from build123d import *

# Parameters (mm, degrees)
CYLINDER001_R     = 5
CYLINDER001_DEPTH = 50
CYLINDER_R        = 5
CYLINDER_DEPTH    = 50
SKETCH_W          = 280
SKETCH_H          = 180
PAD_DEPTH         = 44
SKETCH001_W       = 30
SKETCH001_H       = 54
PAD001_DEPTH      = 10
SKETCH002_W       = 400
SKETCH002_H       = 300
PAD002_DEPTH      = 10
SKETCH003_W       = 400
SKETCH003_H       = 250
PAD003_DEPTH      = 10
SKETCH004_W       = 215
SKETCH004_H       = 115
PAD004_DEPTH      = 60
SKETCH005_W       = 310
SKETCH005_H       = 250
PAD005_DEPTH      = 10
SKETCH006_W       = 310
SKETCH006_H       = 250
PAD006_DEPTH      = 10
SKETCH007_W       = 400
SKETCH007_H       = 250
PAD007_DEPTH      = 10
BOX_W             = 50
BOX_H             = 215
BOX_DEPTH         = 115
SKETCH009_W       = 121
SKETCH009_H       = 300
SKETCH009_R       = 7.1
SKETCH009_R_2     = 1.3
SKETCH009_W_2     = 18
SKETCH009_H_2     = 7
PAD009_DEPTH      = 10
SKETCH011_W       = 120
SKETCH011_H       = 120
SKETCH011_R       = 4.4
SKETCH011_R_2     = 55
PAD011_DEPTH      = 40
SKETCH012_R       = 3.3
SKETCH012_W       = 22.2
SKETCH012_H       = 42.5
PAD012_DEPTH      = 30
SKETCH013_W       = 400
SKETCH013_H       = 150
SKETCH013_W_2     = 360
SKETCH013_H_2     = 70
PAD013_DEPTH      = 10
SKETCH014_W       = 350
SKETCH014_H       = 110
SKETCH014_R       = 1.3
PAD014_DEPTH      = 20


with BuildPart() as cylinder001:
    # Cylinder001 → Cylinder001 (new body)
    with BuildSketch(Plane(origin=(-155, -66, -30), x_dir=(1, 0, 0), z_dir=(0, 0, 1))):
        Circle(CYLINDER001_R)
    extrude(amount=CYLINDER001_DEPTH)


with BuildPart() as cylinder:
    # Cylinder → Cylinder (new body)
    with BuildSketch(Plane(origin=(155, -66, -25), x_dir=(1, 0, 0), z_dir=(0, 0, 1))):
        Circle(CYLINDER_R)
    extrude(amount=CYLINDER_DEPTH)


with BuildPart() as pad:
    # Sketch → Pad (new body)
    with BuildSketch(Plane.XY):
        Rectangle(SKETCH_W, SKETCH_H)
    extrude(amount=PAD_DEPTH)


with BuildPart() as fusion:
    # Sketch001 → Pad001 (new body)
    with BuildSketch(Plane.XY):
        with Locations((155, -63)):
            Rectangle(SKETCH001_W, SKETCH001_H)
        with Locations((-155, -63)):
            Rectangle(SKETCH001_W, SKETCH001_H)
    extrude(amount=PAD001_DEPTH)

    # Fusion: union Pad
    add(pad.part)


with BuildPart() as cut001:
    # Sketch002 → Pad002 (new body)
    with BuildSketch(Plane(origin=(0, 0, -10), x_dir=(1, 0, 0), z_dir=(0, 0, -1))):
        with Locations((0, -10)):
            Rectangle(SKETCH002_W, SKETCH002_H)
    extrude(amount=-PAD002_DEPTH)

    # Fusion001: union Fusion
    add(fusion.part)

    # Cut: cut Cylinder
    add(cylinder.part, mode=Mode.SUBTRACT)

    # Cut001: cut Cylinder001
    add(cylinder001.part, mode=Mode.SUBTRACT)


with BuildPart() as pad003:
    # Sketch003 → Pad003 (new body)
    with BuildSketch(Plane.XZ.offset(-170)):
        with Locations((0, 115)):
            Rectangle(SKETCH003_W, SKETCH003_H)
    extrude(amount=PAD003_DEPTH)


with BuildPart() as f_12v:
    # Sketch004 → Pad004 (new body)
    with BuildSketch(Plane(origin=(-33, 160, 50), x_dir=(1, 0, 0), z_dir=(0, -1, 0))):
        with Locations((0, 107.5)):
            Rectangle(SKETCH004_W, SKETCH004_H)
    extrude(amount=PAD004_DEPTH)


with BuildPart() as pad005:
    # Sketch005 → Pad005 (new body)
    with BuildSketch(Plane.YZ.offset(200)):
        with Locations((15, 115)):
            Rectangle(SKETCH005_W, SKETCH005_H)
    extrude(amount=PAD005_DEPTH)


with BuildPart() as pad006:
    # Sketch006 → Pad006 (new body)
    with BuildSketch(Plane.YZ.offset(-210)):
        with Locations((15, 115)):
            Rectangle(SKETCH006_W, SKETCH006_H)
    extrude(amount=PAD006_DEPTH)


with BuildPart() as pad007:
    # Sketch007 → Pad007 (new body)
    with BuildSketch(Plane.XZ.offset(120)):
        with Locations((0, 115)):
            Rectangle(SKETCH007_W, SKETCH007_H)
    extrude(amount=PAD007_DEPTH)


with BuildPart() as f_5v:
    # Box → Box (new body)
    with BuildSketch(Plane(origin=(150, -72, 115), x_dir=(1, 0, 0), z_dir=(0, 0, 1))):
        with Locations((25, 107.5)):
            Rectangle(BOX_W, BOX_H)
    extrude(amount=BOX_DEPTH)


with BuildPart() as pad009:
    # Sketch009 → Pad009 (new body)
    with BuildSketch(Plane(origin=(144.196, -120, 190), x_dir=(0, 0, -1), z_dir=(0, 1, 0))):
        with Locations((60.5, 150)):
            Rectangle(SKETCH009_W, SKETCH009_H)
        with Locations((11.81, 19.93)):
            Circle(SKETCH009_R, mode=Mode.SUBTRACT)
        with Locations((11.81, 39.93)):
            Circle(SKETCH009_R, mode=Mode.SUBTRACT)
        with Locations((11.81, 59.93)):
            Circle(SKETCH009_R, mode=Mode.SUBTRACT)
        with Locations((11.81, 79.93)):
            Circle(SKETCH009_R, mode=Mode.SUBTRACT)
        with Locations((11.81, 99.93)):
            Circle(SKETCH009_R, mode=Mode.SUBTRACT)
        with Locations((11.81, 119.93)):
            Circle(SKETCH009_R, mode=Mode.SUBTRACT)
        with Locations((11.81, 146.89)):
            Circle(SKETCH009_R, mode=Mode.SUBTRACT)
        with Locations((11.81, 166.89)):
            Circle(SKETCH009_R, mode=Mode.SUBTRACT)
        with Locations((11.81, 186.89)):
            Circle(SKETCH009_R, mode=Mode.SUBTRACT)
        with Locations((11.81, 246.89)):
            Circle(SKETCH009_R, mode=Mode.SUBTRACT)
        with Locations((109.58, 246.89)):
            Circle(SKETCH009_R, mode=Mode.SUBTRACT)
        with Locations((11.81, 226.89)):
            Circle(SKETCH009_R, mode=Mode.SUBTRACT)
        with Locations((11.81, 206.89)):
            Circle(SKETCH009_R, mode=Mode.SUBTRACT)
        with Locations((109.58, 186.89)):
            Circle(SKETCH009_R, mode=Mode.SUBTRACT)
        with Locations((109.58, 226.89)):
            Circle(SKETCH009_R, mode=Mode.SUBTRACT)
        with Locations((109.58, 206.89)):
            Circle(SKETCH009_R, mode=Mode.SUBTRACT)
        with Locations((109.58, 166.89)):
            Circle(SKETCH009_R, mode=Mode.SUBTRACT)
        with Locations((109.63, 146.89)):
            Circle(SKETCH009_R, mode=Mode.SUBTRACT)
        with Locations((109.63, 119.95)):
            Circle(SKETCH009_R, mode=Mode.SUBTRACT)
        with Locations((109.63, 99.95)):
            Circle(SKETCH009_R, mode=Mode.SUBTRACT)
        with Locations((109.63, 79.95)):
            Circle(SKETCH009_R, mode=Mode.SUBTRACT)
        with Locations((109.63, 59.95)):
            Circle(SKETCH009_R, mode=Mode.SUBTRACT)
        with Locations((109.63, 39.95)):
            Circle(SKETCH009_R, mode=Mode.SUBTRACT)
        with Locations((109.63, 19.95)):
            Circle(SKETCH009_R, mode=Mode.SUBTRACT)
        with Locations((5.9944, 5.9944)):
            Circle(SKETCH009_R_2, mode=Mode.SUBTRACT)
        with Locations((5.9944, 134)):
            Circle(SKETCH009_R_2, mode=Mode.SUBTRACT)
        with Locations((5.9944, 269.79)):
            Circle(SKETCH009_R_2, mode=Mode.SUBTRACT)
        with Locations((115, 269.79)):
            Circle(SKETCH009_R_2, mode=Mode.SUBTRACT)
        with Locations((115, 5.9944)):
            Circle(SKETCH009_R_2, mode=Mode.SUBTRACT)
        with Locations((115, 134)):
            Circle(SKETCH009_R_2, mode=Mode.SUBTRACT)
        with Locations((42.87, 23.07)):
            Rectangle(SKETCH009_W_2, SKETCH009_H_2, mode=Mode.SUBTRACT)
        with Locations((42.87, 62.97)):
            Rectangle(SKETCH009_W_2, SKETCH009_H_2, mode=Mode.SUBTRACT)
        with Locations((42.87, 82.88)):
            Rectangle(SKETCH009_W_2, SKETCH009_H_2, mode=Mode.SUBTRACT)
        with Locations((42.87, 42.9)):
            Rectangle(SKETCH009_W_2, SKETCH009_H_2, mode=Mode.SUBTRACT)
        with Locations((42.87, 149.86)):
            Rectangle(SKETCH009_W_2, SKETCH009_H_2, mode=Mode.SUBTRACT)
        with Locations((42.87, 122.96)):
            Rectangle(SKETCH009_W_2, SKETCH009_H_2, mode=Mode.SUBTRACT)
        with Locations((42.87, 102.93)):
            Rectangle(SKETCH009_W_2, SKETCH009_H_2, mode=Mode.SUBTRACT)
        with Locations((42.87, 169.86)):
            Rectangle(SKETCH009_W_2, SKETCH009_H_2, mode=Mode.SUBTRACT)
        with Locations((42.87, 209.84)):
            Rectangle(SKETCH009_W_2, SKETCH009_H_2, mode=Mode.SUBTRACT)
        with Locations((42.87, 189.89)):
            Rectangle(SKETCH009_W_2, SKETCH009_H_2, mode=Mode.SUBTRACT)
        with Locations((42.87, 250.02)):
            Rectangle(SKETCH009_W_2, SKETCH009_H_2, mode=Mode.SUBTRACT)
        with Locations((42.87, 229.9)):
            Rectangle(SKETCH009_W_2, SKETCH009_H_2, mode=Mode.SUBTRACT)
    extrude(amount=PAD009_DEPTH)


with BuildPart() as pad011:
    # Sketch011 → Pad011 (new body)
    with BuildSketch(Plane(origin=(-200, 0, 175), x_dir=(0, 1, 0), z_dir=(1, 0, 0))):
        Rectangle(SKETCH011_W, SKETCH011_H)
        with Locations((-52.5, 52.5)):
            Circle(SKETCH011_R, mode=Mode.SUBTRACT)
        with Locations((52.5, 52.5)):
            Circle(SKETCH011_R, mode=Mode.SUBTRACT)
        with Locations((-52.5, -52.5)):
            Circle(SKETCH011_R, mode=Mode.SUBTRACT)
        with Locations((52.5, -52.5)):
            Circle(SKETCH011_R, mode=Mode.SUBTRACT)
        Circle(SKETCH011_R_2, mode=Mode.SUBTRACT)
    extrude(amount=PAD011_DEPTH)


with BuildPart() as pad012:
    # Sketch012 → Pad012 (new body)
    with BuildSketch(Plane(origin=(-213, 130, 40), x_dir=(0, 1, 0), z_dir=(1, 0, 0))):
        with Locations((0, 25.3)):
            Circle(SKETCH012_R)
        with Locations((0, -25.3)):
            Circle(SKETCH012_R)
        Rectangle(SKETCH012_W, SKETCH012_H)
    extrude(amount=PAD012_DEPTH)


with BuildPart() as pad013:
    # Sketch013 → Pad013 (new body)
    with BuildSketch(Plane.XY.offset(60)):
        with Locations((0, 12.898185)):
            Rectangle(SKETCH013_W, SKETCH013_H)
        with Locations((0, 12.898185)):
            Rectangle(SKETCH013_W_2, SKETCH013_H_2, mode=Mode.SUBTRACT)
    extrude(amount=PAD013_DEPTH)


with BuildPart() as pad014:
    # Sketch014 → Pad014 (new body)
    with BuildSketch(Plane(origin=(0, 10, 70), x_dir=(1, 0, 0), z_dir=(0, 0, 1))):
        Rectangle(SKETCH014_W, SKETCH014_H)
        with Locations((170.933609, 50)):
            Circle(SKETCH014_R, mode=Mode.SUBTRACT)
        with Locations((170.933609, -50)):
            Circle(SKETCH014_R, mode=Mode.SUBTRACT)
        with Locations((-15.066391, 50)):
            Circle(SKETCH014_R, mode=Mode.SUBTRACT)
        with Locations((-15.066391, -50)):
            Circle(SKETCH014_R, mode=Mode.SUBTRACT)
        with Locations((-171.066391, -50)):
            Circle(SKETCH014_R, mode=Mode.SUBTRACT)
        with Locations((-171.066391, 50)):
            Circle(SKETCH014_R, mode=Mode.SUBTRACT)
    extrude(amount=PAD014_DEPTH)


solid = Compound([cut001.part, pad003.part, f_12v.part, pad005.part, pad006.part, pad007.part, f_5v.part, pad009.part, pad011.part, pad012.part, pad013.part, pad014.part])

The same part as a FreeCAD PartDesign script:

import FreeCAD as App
import Part
import Sketcher

V = App.Vector
Q = App.Units.Quantity


def add_polygon(sketch, points):
    """Adds a closed chain of lines whose ends are joined by coincident constraints."""
    first, n = sketch.GeometryCount, len(points)
    for a, b in zip(points, points[1:] + points[:1]):
        sketch.addGeometry(Part.LineSegment(App.Vector(*a, 0), App.Vector(*b, 0)), False)
    for i in range(n):
        sketch.addConstraint(Sketcher.Constraint("Coincident", first + i, 2, first + (i + 1) % n, 1))

doc = App.newDocument("Part")
body = doc.addObject("PartDesign::Body", "Body")

# Sketch on XY plane
sketch1 = body.newObject("Sketcher::SketchObject", "Sketch")
sketch1.AttachmentSupport = (doc.getObject("XY_Plane"), [""])
sketch1.MapMode = "FlatFace"
sketch1.AttachmentOffset = App.Placement(V(0, 0, -30), App.Rotation())
sketch1.addGeometry(Part.Circle(V(-155, -66, 0), V(0, 0, 1), 5), False)
sketch1.addConstraint([
    Sketcher.Constraint("Diameter", 0, Q("10 mm")),
    Sketcher.Constraint("DistanceX", 0, 3, -1, 1, Q("155 mm")),
    Sketcher.Constraint("DistanceY", 0, 3, -1, 1, Q("66 mm")),
])
pad1 = body.newObject("PartDesign::Pad", "Pad")
pad1.Profile = sketch1
pad1.Length = 50
body2 = doc.addObject("PartDesign::Body", "Body001")

# Sketch on XY plane
sketch2 = body2.newObject("Sketcher::SketchObject", "Sketch001")
sketch2.AttachmentSupport = (doc.getObject("XY_Plane001"), [""])
sketch2.MapMode = "FlatFace"
sketch2.AttachmentOffset = App.Placement(V(0, 0, -25), App.Rotation())
sketch2.addGeometry(Part.Circle(V(155, -66, 0), V(0, 0, 1), 5), False)
sketch2.addConstraint([
    Sketcher.Constraint("Diameter", 0, Q("10 mm")),
    Sketcher.Constraint("DistanceX", -1, 1, 0, 3, Q("155 mm")),
    Sketcher.Constraint("DistanceY", 0, 3, -1, 1, Q("66 mm")),
])
pad2 = body2.newObject("PartDesign::Pad", "Pad001")
pad2.Profile = sketch2
pad2.Length = 50
body3 = doc.addObject("PartDesign::Body", "Body002")

# Sketch on XY plane
sketch3 = body3.newObject("Sketcher::SketchObject", "Sketch002")
sketch3.AttachmentSupport = (doc.getObject("XY_Plane002"), [""])
sketch3.MapMode = "FlatFace"
add_polygon(sketch3, [(-140, 90), (-140, -90), (140, -90), (140, 90)])  # lines 0-3
sketch3.addConstraint([
    Sketcher.Constraint("Vertical", 0),
    Sketcher.Constraint("Horizontal", 1),
    Sketcher.Constraint("Vertical", 2),
    Sketcher.Constraint("Horizontal", 3),
    Sketcher.Constraint("Symmetric", 0, 2, 2, 2, -1, 1),
    Sketcher.Constraint("DistanceX", 1, 1, 1, 2, Q("280 mm")),
    Sketcher.Constraint("DistanceY", 0, 2, 0, 1, Q("180 mm")),
])
pad3 = body3.newObject("PartDesign::Pad", "Pad002")
pad3.Profile = sketch3
pad3.Length = 44
body4 = doc.addObject("PartDesign::Body", "Body003")
body4.AllowCompound = True

# Sketch on XY plane
sketch4 = body4.newObject("Sketcher::SketchObject", "Sketch003")
sketch4.AttachmentSupport = (doc.getObject("XY_Plane003"), [""])
sketch4.MapMode = "FlatFace"
add_polygon(sketch4, [(140, -36), (140, -90), (170, -90), (170, -36)])  # lines 0-3
add_polygon(sketch4, [(-170, -36), (-170, -90), (-140, -90), (-140, -36)])  # lines 4-7
sketch4.addConstraint([
    Sketcher.Constraint("Vertical", 0),
    Sketcher.Constraint("Horizontal", 1),
    Sketcher.Constraint("Vertical", 2),
    Sketcher.Constraint("Horizontal", 3),
    Sketcher.Constraint("Vertical", 4),
    Sketcher.Constraint("Horizontal", 5),
    Sketcher.Constraint("Vertical", 6),
    Sketcher.Constraint("Horizontal", 7),
    Sketcher.Constraint("Symmetric", 1, 2, 4, 2, -2),
    Sketcher.Constraint("Symmetric", 3, 2, 6, 2, -2),
    Sketcher.Constraint("DistanceX", 1, 1, 1, 2, Q("30 mm")),
    Sketcher.Constraint("DistanceY", 0, 2, 0, 1, Q("54 mm")),
    Sketcher.Constraint("DistanceX", -1, 1, 0, 2, Q("140 mm")),
    Sketcher.Constraint("DistanceY", 0, 2, -1, 1, Q("90 mm")),
])
pad4 = body4.newObject("PartDesign::Pad", "Pad003")
pad4.Profile = sketch4
pad4.Length = 10
doc.recompute()

boolean = body4.newObject("PartDesign::Boolean", "Boolean")
boolean.Type = "Fuse"
boolean.addObjects([body3])
body5 = doc.addObject("PartDesign::Body", "Body004")

# Sketch on XY plane
sketch5 = body5.newObject("Sketcher::SketchObject", "Sketch004")
sketch5.AttachmentSupport = (doc.getObject("XY_Plane004"), [""])
sketch5.MapMode = "FlatFace"
sketch5.AttachmentOffset = App.Placement(V(0, 0, -10), App.Rotation())
add_polygon(sketch5, [(-200, -140), (-200, 160), (200, 160), (200, -140)])  # lines 0-3
sketch5.addConstraint([
    Sketcher.Constraint("Vertical", 0),
    Sketcher.Constraint("Horizontal", 1),
    Sketcher.Constraint("Vertical", 2),
    Sketcher.Constraint("Horizontal", 3),
    Sketcher.Constraint("DistanceX", 1, 1, 1, 2, Q("400 mm")),
    Sketcher.Constraint("DistanceY", 0, 1, 0, 2, Q("300 mm")),
    Sketcher.Constraint("DistanceX", 0, 2, -1, 1, Q("200 mm")),
    Sketcher.Constraint("DistanceY", -1, 1, 0, 2, Q("160 mm")),
])
pad5 = body5.newObject("PartDesign::Pad", "Pad004")
pad5.Profile = sketch5
pad5.Length = 10
doc.recompute()

boolean2 = body5.newObject("PartDesign::Boolean", "Boolean001")
boolean2.Type = "Fuse"
boolean2.addObjects([body4])
doc.recompute()

boolean3 = body5.newObject("PartDesign::Boolean", "Boolean002")
boolean3.Type = "Cut"
boolean3.addObjects([body2])
doc.recompute()

boolean4 = body5.newObject("PartDesign::Boolean", "Boolean003")
boolean4.Type = "Cut"
boolean4.addObjects([body])
body6 = doc.addObject("PartDesign::Body", "Body005")

# Sketch on XZ plane
sketch6 = body6.newObject("Sketcher::SketchObject", "Sketch005")
sketch6.AttachmentSupport = (doc.getObject("XZ_Plane005"), [""])
sketch6.MapMode = "FlatFace"
sketch6.AttachmentOffset = App.Placement(V(0, 0, -170), App.Rotation())
add_polygon(sketch6, [(-200, 240), (-200, -10), (200, -10), (200, 240)])  # lines 0-3
sketch6.addConstraint([
    Sketcher.Constraint("Vertical", 0),
    Sketcher.Constraint("Horizontal", 1),
    Sketcher.Constraint("Vertical", 2),
    Sketcher.Constraint("Horizontal", 3),
    Sketcher.Constraint("DistanceX", 1, 1, 1, 2, Q("400 mm")),
    Sketcher.Constraint("DistanceY", 0, 2, 0, 1, Q("250 mm")),
    Sketcher.Constraint("DistanceX", 0, 2, -1, 1, Q("200 mm")),
    Sketcher.Constraint("DistanceY", 0, 2, -1, 1, Q("10 mm")),
])
pad6 = body6.newObject("PartDesign::Pad", "Pad005")
pad6.Profile = sketch6
pad6.Length = 10
body7 = doc.addObject("PartDesign::Body", "Body006")

# Sketch on XZ plane
sketch7 = body7.newObject("Sketcher::SketchObject", "Sketch006")
sketch7.AttachmentSupport = (doc.getObject("XZ_Plane006"), [""])
sketch7.MapMode = "FlatFace"
sketch7.AttachmentOffset = App.Placement(V(0, 0, -160), App.Rotation())
add_polygon(sketch7, [(-140, 215), (-140, 100), (74, 100), (74, 215)])  # lines 0-3
sketch7.addConstraint([
    Sketcher.Constraint("Vertical", 0),
    Sketcher.Constraint("Horizontal", 1),
    Sketcher.Constraint("Vertical", 2),
    Sketcher.Constraint("Horizontal", 3),
    Sketcher.Constraint("DistanceX", 1, 1, 1, 2, Q("215 mm")),
    Sketcher.Constraint("DistanceY", 0, 2, 0, 1, Q("115 mm")),
    Sketcher.Constraint("DistanceY", -1, 1, 0, 2, Q("100 mm")),
    Sketcher.Constraint("DistanceX", 0, 2, -1, 1, Q("140.5 mm")),
])
pad7 = body7.newObject("PartDesign::Pad", "Pad006")
pad7.Profile = sketch7
pad7.Length = 60
body8 = doc.addObject("PartDesign::Body", "Body007")

# Sketch on YZ plane
sketch8 = body8.newObject("Sketcher::SketchObject", "Sketch007")
sketch8.AttachmentSupport = (doc.getObject("YZ_Plane007"), [""])
sketch8.MapMode = "FlatFace"
sketch8.AttachmentOffset = App.Placement(V(0, 0, 200), App.Rotation())
add_polygon(sketch8, [(-140, 240), (-140, -10), (170, -10), (170, 240)])  # lines 0-3
sketch8.addConstraint([
    Sketcher.Constraint("Vertical", 0),
    Sketcher.Constraint("Horizontal", 1),
    Sketcher.Constraint("Vertical", 2),
    Sketcher.Constraint("Horizontal", 3),
    Sketcher.Constraint("DistanceX", 1, 1, 1, 2, Q("310 mm")),
    Sketcher.Constraint("DistanceY", 0, 2, 0, 1, Q("250 mm")),
    Sketcher.Constraint("DistanceX", 0, 2, -1, 1, Q("140 mm")),
    Sketcher.Constraint("DistanceY", 0, 2, -1, 1, Q("10 mm")),
])
pad8 = body8.newObject("PartDesign::Pad", "Pad007")
pad8.Profile = sketch8
pad8.Length = 10
body9 = doc.addObject("PartDesign::Body", "Body008")

# Sketch on YZ plane
sketch9 = body9.newObject("Sketcher::SketchObject", "Sketch008")
sketch9.AttachmentSupport = (doc.getObject("YZ_Plane008"), [""])
sketch9.MapMode = "FlatFace"
sketch9.AttachmentOffset = App.Placement(V(0, 0, -210), App.Rotation())
add_polygon(sketch9, [(-140, 240), (-140, -10), (170, -10), (170, 240)])  # lines 0-3
sketch9.addConstraint([
    Sketcher.Constraint("Vertical", 0),
    Sketcher.Constraint("Horizontal", 1),
    Sketcher.Constraint("Vertical", 2),
    Sketcher.Constraint("Horizontal", 3),
    Sketcher.Constraint("DistanceX", 1, 1, 1, 2, Q("310 mm")),
    Sketcher.Constraint("DistanceY", 0, 2, 0, 1, Q("250 mm")),
    Sketcher.Constraint("DistanceX", 0, 2, -1, 1, Q("140 mm")),
    Sketcher.Constraint("DistanceY", 0, 2, -1, 1, Q("10 mm")),
])
pad9 = body9.newObject("PartDesign::Pad", "Pad008")
pad9.Profile = sketch9
pad9.Length = 10
body10 = doc.addObject("PartDesign::Body", "Body009")

# Sketch on XZ plane
sketch10 = body10.newObject("Sketcher::SketchObject", "Sketch009")
sketch10.AttachmentSupport = (doc.getObject("XZ_Plane009"), [""])
sketch10.MapMode = "FlatFace"
sketch10.AttachmentOffset = App.Placement(V(0, 0, 120), App.Rotation())
add_polygon(sketch10, [(-200, 240), (-200, -10), (200, -10), (200, 240)])  # lines 0-3
sketch10.addConstraint([
    Sketcher.Constraint("Vertical", 0),
    Sketcher.Constraint("Horizontal", 1),
    Sketcher.Constraint("Vertical", 2),
    Sketcher.Constraint("Horizontal", 3),
    Sketcher.Constraint("DistanceX", 1, 1, 1, 2, Q("400 mm")),
    Sketcher.Constraint("DistanceY", 0, 2, 0, 1, Q("250 mm")),
    Sketcher.Constraint("DistanceX", 0, 2, -1, 1, Q("200 mm")),
    Sketcher.Constraint("DistanceY", 0, 2, -1, 1, Q("10 mm")),
])
pad10 = body10.newObject("PartDesign::Pad", "Pad009")
pad10.Profile = sketch10
pad10.Length = 10
body11 = doc.addObject("PartDesign::Body", "Body010")

# Sketch on XY plane
sketch11 = body11.newObject("Sketcher::SketchObject", "Sketch010")
sketch11.AttachmentSupport = (doc.getObject("XY_Plane010"), [""])
sketch11.MapMode = "FlatFace"
sketch11.AttachmentOffset = App.Placement(V(0, 0, 115), App.Rotation())
add_polygon(sketch11, [(150, 143), (150, -72), (200, -72), (200, 143)])  # lines 0-3
sketch11.addConstraint([
    Sketcher.Constraint("Vertical", 0),
    Sketcher.Constraint("Horizontal", 1),
    Sketcher.Constraint("Vertical", 2),
    Sketcher.Constraint("Horizontal", 3),
    Sketcher.Constraint("DistanceX", 1, 1, 1, 2, Q("50 mm")),
    Sketcher.Constraint("DistanceY", 0, 2, 0, 1, Q("215 mm")),
    Sketcher.Constraint("DistanceX", -1, 1, 0, 2, Q("150 mm")),
    Sketcher.Constraint("DistanceY", 0, 2, -1, 1, Q("72 mm")),
])
pad11 = body11.newObject("PartDesign::Pad", "Pad010")
pad11.Profile = sketch11
pad11.Length = 115
body12 = doc.addObject("PartDesign::Body", "Body011")

# Sketch on XZ plane
sketch12 = body12.newObject("Sketcher::SketchObject", "Sketch011")
sketch12.AttachmentSupport = (doc.getObject("XZ_Plane011"), [""])
sketch12.MapMode = "FlatFace"
sketch12.AttachmentOffset = App.Placement(V(0, 0, 120), App.Rotation())
add_polygon(sketch12, [(-155.8, 190), (144.2, 190), (144.2, 69), (-155.8, 69)])  # lines 0-3
sketch12.addGeometry(Part.Circle(V(138.2, 184, 0), V(0, 0, 1), 1.3), False)  # 4
sketch12.addGeometry(Part.Circle(V(124.3, 178.2, 0), V(0, 0, 1), 7.1), False)  # 5
sketch12.addGeometry(Part.Circle(V(104.3, 178.2, 0), V(0, 0, 1), 7.1), False)  # 6
sketch12.addGeometry(Part.Circle(V(84.3, 178.2, 0), V(0, 0, 1), 7.1), False)  # 7
add_polygon(sketch12, [(124.6, 138.1), (124.6, 156.1), (117.6, 156.1), (117.6, 138.1)])  # lines 8-11
add_polygon(sketch12, [(104.8, 138.1), (104.8, 156.1), (97.8, 156.1), (97.8, 138.1)])  # lines 12-15
add_polygon(sketch12, [(84.7, 138.1), (84.7, 156.1), (77.7, 156.1), (77.7, 138.1)])  # lines 16-19
sketch12.addGeometry(Part.Circle(V(64.3, 178.2, 0), V(0, 0, 1), 7.1), False)  # 20
sketch12.addGeometry(Part.Circle(V(44.3, 178.2, 0), V(0, 0, 1), 7.1), False)  # 21
sketch12.addGeometry(Part.Circle(V(24.3, 178.2, 0), V(0, 0, 1), 7.1), False)  # 22
sketch12.addGeometry(Part.Circle(V(10.2, 184, 0), V(0, 0, 1), 1.3), False)  # 23
add_polygon(sketch12, [(64.8, 138.1), (64.8, 156.1), (57.8, 156.1), (57.8, 138.1)])  # lines 24-27
add_polygon(sketch12, [(44.8, 138.1), (44.8, 156.1), (37.8, 156.1), (37.8, 138.1)])  # lines 28-31
add_polygon(sketch12, [(24.7, 138.1), (24.7, 156.1), (17.7, 156.1), (17.7, 138.1)])  # lines 32-35
sketch12.addGeometry(Part.Circle(V(124.2, 80.4, 0), V(0, 0, 1), 7.1), False)  # 36
sketch12.addGeometry(Part.Circle(V(138.2, 75, 0), V(0, 0, 1), 1.3), False)  # 37
sketch12.addGeometry(Part.Circle(V(104.2, 80.4, 0), V(0, 0, 1), 7.1), False)  # 38
sketch12.addGeometry(Part.Circle(V(84.2, 80.4, 0), V(0, 0, 1), 7.1), False)  # 39
sketch12.addGeometry(Part.Circle(V(64.2, 80.4, 0), V(0, 0, 1), 7.1), False)  # 40
sketch12.addGeometry(Part.Circle(V(44.2, 80.4, 0), V(0, 0, 1), 7.1), False)  # 41
sketch12.addGeometry(Part.Circle(V(24.2, 80.4, 0), V(0, 0, 1), 7.1), False)  # 42
sketch12.addGeometry(Part.Circle(V(10.2, 75, 0), V(0, 0, 1), 1.3), False)  # 43
sketch12.addGeometry(Part.Circle(V(-2.7, 178.2, 0), V(0, 0, 1), 7.1), False)  # 44
sketch12.addGeometry(Part.Circle(V(-22.7, 178.2, 0), V(0, 0, 1), 7.1), False)  # 45
sketch12.addGeometry(Part.Circle(V(-42.7, 178.2, 0), V(0, 0, 1), 7.1), False)  # 46
add_polygon(sketch12, [(-2.2, 138.1), (-2.2, 156.1), (-9.2, 156.1), (-9.2, 138.1)])  # lines 47-50
add_polygon(sketch12, [(-22.2, 138.1), (-22.2, 156.1), (-29.2, 156.1), (-29.2, 138.1)])  # lines 51-54
add_polygon(sketch12, [(-42.2, 138.1), (-42.2, 156.1), (-49.2, 156.1), (-49.2, 138.1)])  # lines 55-58
sketch12.addGeometry(Part.Circle(V(-62.7, 178.2, 0), V(0, 0, 1), 7.1), False)  # 59
sketch12.addGeometry(Part.Circle(V(-82.7, 178.2, 0), V(0, 0, 1), 7.1), False)  # 60
sketch12.addGeometry(Part.Circle(V(-102.7, 178.2, 0), V(0, 0, 1), 7.1), False)  # 61
sketch12.addGeometry(Part.Circle(V(-125.6, 184, 0), V(0, 0, 1), 1.3), False)  # 62
add_polygon(sketch12, [(-62.1, 138.1), (-62.1, 156.1), (-69.1, 156.1), (-69.1, 138.1)])  # lines 63-66
add_polygon(sketch12, [(-82.2, 138.1), (-82.2, 156.1), (-89.2, 156.1), (-89.2, 138.1)])  # lines 67-70
add_polygon(sketch12, [(-102.3, 138.1), (-102.3, 156.1), (-109.3, 156.1), (-109.3, 138.1)])  # lines 71-74
sketch12.addGeometry(Part.Circle(V(-2.7, 80.4, 0), V(0, 0, 1), 7.1), False)  # 75
sketch12.addGeometry(Part.Circle(V(-22.7, 80.4, 0), V(0, 0, 1), 7.1), False)  # 76
sketch12.addGeometry(Part.Circle(V(-42.7, 80.4, 0), V(0, 0, 1), 7.1), False)  # 77
sketch12.addGeometry(Part.Circle(V(-62.7, 80.4, 0), V(0, 0, 1), 7.1), False)  # 78
sketch12.addGeometry(Part.Circle(V(-82.7, 80.4, 0), V(0, 0, 1), 7.1), False)  # 79
sketch12.addGeometry(Part.Circle(V(-102.7, 80.4, 0), V(0, 0, 1), 7.1), False)  # 80
sketch12.addGeometry(Part.Circle(V(-125.6, 75, 0), V(0, 0, 1), 1.3), False)  # 81
sketch12.addConstraint([
    Sketcher.Constraint("Horizontal", 0),
    Sketcher.Constraint("Vertical", 1),
    Sketcher.Constraint("Horizontal", 2),
    Sketcher.Constraint("Vertical", 3),
    Sketcher.Constraint("Vertical", 8),
    Sketcher.Constraint("Horizontal", 9),
    Sketcher.Constraint("Vertical", 10),
    Sketcher.Constraint("Horizontal", 11),
    Sketcher.Constraint("Vertical", 12),
    Sketcher.Constraint("Horizontal", 13),
    Sketcher.Constraint("Vertical", 14),
    Sketcher.Constraint("Horizontal", 15),
    Sketcher.Constraint("Vertical", 16),
    Sketcher.Constraint("Horizontal", 17),
    Sketcher.Constraint("Vertical", 18),
    Sketcher.Constraint("Horizontal", 19),
    Sketcher.Constraint("Vertical", 24),
    Sketcher.Constraint("Horizontal", 25),
    Sketcher.Constraint("Vertical", 26),
    Sketcher.Constraint("Horizontal", 27),
    Sketcher.Constraint("Vertical", 28),
    Sketcher.Constraint("Horizontal", 29),
    Sketcher.Constraint("Vertical", 30),
    Sketcher.Constraint("Horizontal", 31),
    Sketcher.Constraint("Vertical", 32),
    Sketcher.Constraint("Horizontal", 33),
    Sketcher.Constraint("Vertical", 34),
    Sketcher.Constraint("Horizontal", 35),
    Sketcher.Constraint("Vertical", 47),
    Sketcher.Constraint("Horizontal", 48),
    Sketcher.Constraint("Vertical", 49),
    Sketcher.Constraint("Horizontal", 50),
    Sketcher.Constraint("Vertical", 51),
    Sketcher.Constraint("Horizontal", 52),
    Sketcher.Constraint("Vertical", 53),
    Sketcher.Constraint("Horizontal", 54),
    Sketcher.Constraint("Vertical", 55),
    Sketcher.Constraint("Horizontal", 56),
    Sketcher.Constraint("Vertical", 57),
    Sketcher.Constraint("Horizontal", 58),
    Sketcher.Constraint("Vertical", 63),
    Sketcher.Constraint("Horizontal", 64),
    Sketcher.Constraint("Vertical", 65),
    Sketcher.Constraint("Horizontal", 66),
    Sketcher.Constraint("Vertical", 67),
    Sketcher.Constraint("Horizontal", 68),
    Sketcher.Constraint("Vertical", 69),
    Sketcher.Constraint("Horizontal", 70),
    Sketcher.Constraint("Vertical", 71),
    Sketcher.Constraint("Horizontal", 72),
    Sketcher.Constraint("Vertical", 73),
    Sketcher.Constraint("Horizontal", 74),
    Sketcher.Constraint("Equal", 5, 6),
    Sketcher.Constraint("Equal", 6, 7),
    Sketcher.Constraint("Equal", 7, 20),
    Sketcher.Constraint("Equal", 20, 21),
    Sketcher.Constraint("Equal", 21, 22),
    Sketcher.Constraint("Equal", 4, 23),
    Sketcher.Constraint("Equal", 22, 36),
    Sketcher.Constraint("Equal", 23, 37),
    Sketcher.Constraint("Equal", 36, 38),
    Sketcher.Constraint("Equal", 38, 39),
    Sketcher.Constraint("Equal", 39, 40),
    Sketcher.Constraint("Equal", 40, 41),
    Sketcher.Constraint("Equal", 41, 42),
    Sketcher.Constraint("Equal", 37, 43),
    Sketcher.Constraint("Equal", 42, 44),
    Sketcher.Constraint("Equal", 44, 45),
    Sketcher.Constraint("Equal", 45, 46),
    Sketcher.Constraint("Equal", 46, 59),
    Sketcher.Constraint("Equal", 59, 60),
    Sketcher.Constraint("Equal", 60, 61),
    Sketcher.Constraint("Equal", 43, 62),
    Sketcher.Constraint("Equal", 61, 75),
    Sketcher.Constraint("Equal", 75, 76),
    Sketcher.Constraint("Equal", 76, 77),
    Sketcher.Constraint("Equal", 77, 78),
    Sketcher.Constraint("Equal", 78, 79),
    Sketcher.Constraint("Equal", 79, 80),
    Sketcher.Constraint("Equal", 62, 81),
    Sketcher.Constraint("Horizontal", 5, 3, 6, 3),
    Sketcher.Constraint("Horizontal", 6, 3, 7, 3),
    Sketcher.Constraint("Horizontal", 7, 3, 20, 3),
    Sketcher.Constraint("Horizontal", 20, 3, 21, 3),
    Sketcher.Constraint("Horizontal", 21, 3, 22, 3),
    Sketcher.Constraint("Horizontal", 4, 3, 23, 3),
    Sketcher.Constraint("Horizontal", 36, 3, 38, 3),
    Sketcher.Constraint("Horizontal", 38, 3, 39, 3),
    Sketcher.Constraint("Horizontal", 39, 3, 40, 3),
    Sketcher.Constraint("Horizontal", 40, 3, 41, 3),
    Sketcher.Constraint("Horizontal", 41, 3, 42, 3),
    Sketcher.Constraint("Horizontal", 37, 3, 43, 3),
    Sketcher.Constraint("Horizontal", 22, 3, 44, 3),
    Sketcher.Constraint("Horizontal", 44, 3, 45, 3),
    Sketcher.Constraint("Horizontal", 45, 3, 46, 3),
    Sketcher.Constraint("Horizontal", 46, 3, 59, 3),
    Sketcher.Constraint("Horizontal", 59, 3, 60, 3),
    Sketcher.Constraint("Horizontal", 60, 3, 61, 3),
    Sketcher.Constraint("Horizontal", 23, 3, 62, 3),
    Sketcher.Constraint("Horizontal", 42, 3, 75, 3),
    Sketcher.Constraint("Horizontal", 76, 3, 77, 3),
    Sketcher.Constraint("Horizontal", 77, 3, 78, 3),
    Sketcher.Constraint("Horizontal", 78, 3, 79, 3),
    Sketcher.Constraint("Horizontal", 79, 3, 80, 3),
    Sketcher.Constraint("Horizontal", 43, 3, 81, 3),
    Sketcher.Constraint("Horizontal", 9, 2, 12, 2),
    Sketcher.Constraint("Horizontal", 11, 2, 14, 2),
    Sketcher.Constraint("Horizontal", 13, 2, 16, 2),
    Sketcher.Constraint("Horizontal", 15, 2, 18, 2),
    Sketcher.Constraint("Horizontal", 17, 2, 24, 2),
    Sketcher.Constraint("Horizontal", 19, 2, 26, 2),
    Sketcher.Constraint("Horizontal", 25, 2, 28, 2),
    Sketcher.Constraint("Horizontal", 27, 2, 30, 2),
    Sketcher.Constraint("Horizontal", 29, 2, 32, 2),
    Sketcher.Constraint("Horizontal", 31, 2, 34, 2),
    Sketcher.Constraint("Horizontal", 33, 2, 47, 2),
    Sketcher.Constraint("Horizontal", 35, 2, 49, 2),
    Sketcher.Constraint("Horizontal", 48, 2, 51, 2),
    Sketcher.Constraint("Horizontal", 50, 2, 53, 2),
    Sketcher.Constraint("Horizontal", 52, 2, 55, 2),
    Sketcher.Constraint("Horizontal", 54, 2, 57, 2),
    Sketcher.Constraint("Horizontal", 56, 2, 63, 2),
    Sketcher.Constraint("Horizontal", 58, 2, 65, 2),
    Sketcher.Constraint("Horizontal", 64, 2, 67, 2),
    Sketcher.Constraint("Horizontal", 66, 2, 69, 2),
    Sketcher.Constraint("Horizontal", 68, 2, 71, 2),
    Sketcher.Constraint("Horizontal", 70, 2, 73, 2),
    Sketcher.Constraint("Vertical", 4, 3, 37, 3),
    Sketcher.Constraint("Vertical", 23, 3, 43, 3),
    Sketcher.Constraint("Vertical", 44, 3, 75, 3),
    Sketcher.Constraint("Vertical", 45, 3, 76, 3),
    Sketcher.Constraint("Vertical", 46, 3, 77, 3),
    Sketcher.Constraint("Vertical", 59, 3, 78, 3),
    Sketcher.Constraint("Vertical", 60, 3, 79, 3),
    Sketcher.Constraint("Vertical", 61, 3, 80, 3),
    Sketcher.Constraint("Vertical", 62, 3, 81, 3),
    Sketcher.Constraint("Equal", 11, 13),
    Sketcher.Constraint("Equal", 15, 17),
    Sketcher.Constraint("Equal", 19, 25),
    Sketcher.Constraint("Equal", 27, 29),
    Sketcher.Constraint("Equal", 31, 33),
    Sketcher.Constraint("Equal", 35, 48),
    Sketcher.Constraint("Equal", 50, 52),
    Sketcher.Constraint("Equal", 54, 56),
    Sketcher.Constraint("Equal", 58, 64),
    Sketcher.Constraint("Equal", 66, 68),
    Sketcher.Constraint("Equal", 70, 72),
    Sketcher.Constraint("Diameter", 4, Q("2.6 mm")),
    Sketcher.Constraint("Diameter", 5, Q("14.2 mm")),
    Sketcher.Constraint("DistanceX", 0, 1, 0, 2, Q("300 mm")),
    Sketcher.Constraint("DistanceX", 9, 2, 9, 1, Q("7 mm")),
    Sketcher.Constraint("DistanceY", 1, 2, 1, 1, Q("121 mm")),
    Sketcher.Constraint("DistanceY", 8, 1, 8, 2, Q("18 mm")),
    Sketcher.Constraint("DistanceY", -1, 1, 37, 3, Q("75 mm")),
    Sketcher.Constraint("DistanceY", -1, 1, 0, 2, Q("190 mm")),
    Sketcher.Constraint("DistanceY", -1, 1, 5, 3, Q("178.19 mm")),
    Sketcher.Constraint("DistanceY", -1, 1, 36, 3, Q("80.37 mm")),
    Sketcher.Constraint("DistanceY", -1, 1, 76, 3, Q("80.42 mm")),
    Sketcher.Constraint("DistanceY", -1, 1, 8, 2, Q("156.13 mm")),
    Sketcher.Constraint("DistanceX", -1, 1, 5, 3, Q("124.266 mm")),
    Sketcher.Constraint("DistanceX", -1, 1, 6, 3, Q("104.266 mm")),
    Sketcher.Constraint("DistanceX", -1, 1, 7, 3, Q("84.266 mm")),
    Sketcher.Constraint("DistanceX", -1, 1, 20, 3, Q("64.266 mm")),
    Sketcher.Constraint("DistanceX", -1, 1, 21, 3, Q("44.266 mm")),
    Sketcher.Constraint("DistanceX", -1, 1, 22, 3, Q("24.266 mm")),
    Sketcher.Constraint("DistanceX", -1, 1, 23, 3, Q("10.196 mm")),
    Sketcher.Constraint("DistanceX", -1, 1, 36, 3, Q("124.246 mm")),
    Sketcher.Constraint("DistanceX", -1, 1, 38, 3, Q("104.246 mm")),
    Sketcher.Constraint("DistanceX", -1, 1, 39, 3, Q("84.246 mm")),
    Sketcher.Constraint("DistanceX", -1, 1, 40, 3, Q("64.246 mm")),
    Sketcher.Constraint("DistanceX", -1, 1, 41, 3, Q("44.246 mm")),
    Sketcher.Constraint("DistanceX", -1, 1, 42, 3, Q("24.246 mm")),
    Sketcher.Constraint("DistanceX", 44, 3, -1, 1, Q("2.694 mm")),
    Sketcher.Constraint("DistanceX", 45, 3, -1, 1, Q("22.694 mm")),
    Sketcher.Constraint("DistanceX", 46, 3, -1, 1, Q("42.694 mm")),
    Sketcher.Constraint("DistanceX", 59, 3, -1, 1, Q("62.694 mm")),
    Sketcher.Constraint("DistanceX", 60, 3, -1, 1, Q("82.694 mm")),
    Sketcher.Constraint("DistanceX", 61, 3, -1, 1, Q("102.694 mm")),
    Sketcher.Constraint("DistanceX", 62, 3, -1, 1, Q("125.594 mm")),
    Sketcher.Constraint("DistanceX", -1, 1, 0, 2, Q("144.196 mm")),
    Sketcher.Constraint("DistanceX", -1, 1, 8, 2, Q("124.626 mm")),
    Sketcher.Constraint("DistanceX", -1, 1, 12, 2, Q("104.796 mm")),
    Sketcher.Constraint("DistanceX", -1, 1, 16, 2, Q("84.726 mm")),
    Sketcher.Constraint("DistanceX", -1, 1, 24, 2, Q("64.816 mm")),
    Sketcher.Constraint("DistanceX", -1, 1, 28, 2, Q("44.766 mm")),
    Sketcher.Constraint("DistanceX", -1, 1, 32, 2, Q("24.736 mm")),
    Sketcher.Constraint("DistanceX", 47, 2, -1, 1, Q("2.164 mm")),
    Sketcher.Constraint("DistanceX", 51, 2, -1, 1, Q("22.164 mm")),
    Sketcher.Constraint("DistanceX", 55, 2, -1, 1, Q("42.194 mm")),
    Sketcher.Constraint("DistanceX", 63, 2, -1, 1, Q("62.144 mm")),
    Sketcher.Constraint("DistanceX", 67, 2, -1, 1, Q("82.204 mm")),
    Sketcher.Constraint("DistanceX", 71, 2, -1, 1, Q("102.324 mm")),
    Sketcher.Constraint("DistanceX", -1, 1, 4, 3, Q("138.2016 mm")),
    Sketcher.Constraint("DistanceY", -1, 1, 4, 3, Q("184.0056 mm")),
])
pad12 = body12.newObject("PartDesign::Pad", "Pad011")
pad12.Profile = sketch12
pad12.Length = 10
pad12.Reversed = True
body13 = doc.addObject("PartDesign::Body", "Body012")

# Sketch on YZ plane
sketch13 = body13.newObject("Sketcher::SketchObject", "Sketch012")
sketch13.AttachmentSupport = (doc.getObject("YZ_Plane012"), [""])
sketch13.MapMode = "FlatFace"
sketch13.AttachmentOffset = App.Placement(V(0, 0, -200), App.Rotation())
add_polygon(sketch13, [(-60, 235), (-60, 115), (60, 115), (60, 235)])  # lines 0-3
sketch13.addGeometry(Part.Circle(V(-52.5, 122.5, 0), V(0, 0, 1), 4.4), False)  # 4
sketch13.addGeometry(Part.Circle(V(52.5, 122.5, 0), V(0, 0, 1), 4.4), False)  # 5
sketch13.addGeometry(Part.Circle(V(-52.5, 227.5, 0), V(0, 0, 1), 4.4), False)  # 6
sketch13.addGeometry(Part.Circle(V(0, 175, 0), V(0, 0, 1), 55), False)  # 7
sketch13.addGeometry(Part.Circle(V(52.5, 227.5, 0), V(0, 0, 1), 4.4), False)  # 8
sketch13.addConstraint([
    Sketcher.Constraint("Vertical", 0),
    Sketcher.Constraint("Horizontal", 1),
    Sketcher.Constraint("Vertical", 2),
    Sketcher.Constraint("Horizontal", 3),
    Sketcher.Constraint("Equal", 4, 5),
    Sketcher.Constraint("Equal", 5, 6),
    Sketcher.Constraint("Equal", 6, 8),
    Sketcher.Constraint("Symmetric", 4, 3, 5, 3, -2),
    Sketcher.Constraint("Symmetric", 6, 3, 8, 3, -2),
    Sketcher.Constraint("PointOnObject", 7, 3, -2),
    Sketcher.Constraint("Vertical", 4, 3, 6, 3),
    Sketcher.Constraint("Equal", 3, 0),
    Sketcher.Constraint("Diameter", 7, Q("110 mm")),
    Sketcher.Constraint("Diameter", 4, Q("8.8 mm")),
    Sketcher.Constraint("DistanceX", 1, 1, 1, 2, Q("120 mm")),
    Sketcher.Constraint("DistanceY", -1, 1, 7, 3, Q("175 mm")),
    Sketcher.Constraint("DistanceX", 0, 2, -1, 1, Q("60 mm")),
    Sketcher.Constraint("DistanceY", -1, 1, 0, 2, Q("115 mm")),
    Sketcher.Constraint("DistanceX", 4, 3, 5, 3, Q("105 mm")),
    Sketcher.Constraint("DistanceY", 4, 3, 6, 3, Q("105 mm")),
    Sketcher.Constraint("DistanceY", -1, 1, 4, 3, Q("122.5 mm")),
])
pad13 = body13.newObject("PartDesign::Pad", "Pad012")
pad13.Profile = sketch13
pad13.Length = 40
body14 = doc.addObject("PartDesign::Body", "Body013")
body14.AllowCompound = True

# Sketch on YZ plane
sketch14 = body14.newObject("Sketcher::SketchObject", "Sketch013")
sketch14.AttachmentSupport = (doc.getObject("YZ_Plane013"), [""])
sketch14.MapMode = "FlatFace"
sketch14.AttachmentOffset = App.Placement(V(0, 0, -213), App.Rotation())
sketch14.addGeometry(Part.Circle(V(130, 65.3, 0), V(0, 0, 1), 3.3), False)  # 0
sketch14.addGeometry(Part.Circle(V(130, 14.7, 0), V(0, 0, 1), 3.3), False)  # 1
add_polygon(sketch14, [(118.9, 61.2), (118.9, 18.8), (141.1, 18.8), (141.1, 61.2)])  # lines 2-5
sketch14.addConstraint([
    Sketcher.Constraint("Vertical", 2),
    Sketcher.Constraint("Horizontal", 3),
    Sketcher.Constraint("Vertical", 4),
    Sketcher.Constraint("Horizontal", 5),
    Sketcher.Constraint("Equal", 0, 1),
    Sketcher.Constraint("Vertical", 0, 3, 1, 3),
    Sketcher.Constraint("Diameter", 0, Q("6.6 mm")),
    Sketcher.Constraint("DistanceX", 3, 1, 3, 2, Q("22.2 mm")),
    Sketcher.Constraint("DistanceY", 2, 2, 2, 1, Q("42.5 mm")),
    Sketcher.Constraint("DistanceX", -1, 1, 0, 3, Q("130 mm")),
    Sketcher.Constraint("DistanceY", -1, 1, 0, 3, Q("65.3 mm")),
    Sketcher.Constraint("DistanceY", -1, 1, 1, 3, Q("14.7 mm")),
    Sketcher.Constraint("DistanceX", -1, 1, 2, 2, Q("118.9 mm")),
    Sketcher.Constraint("DistanceY", -1, 1, 2, 2, Q("18.75 mm")),
])
pad14 = body14.newObject("PartDesign::Pad", "Pad013")
pad14.Profile = sketch14
pad14.Length = 30
body15 = doc.addObject("PartDesign::Body", "Body014")

# Sketch on XY plane
sketch15 = body15.newObject("Sketcher::SketchObject", "Sketch014")
sketch15.AttachmentSupport = (doc.getObject("XY_Plane014"), [""])
sketch15.MapMode = "FlatFace"
sketch15.AttachmentOffset = App.Placement(V(0, 0, 60), App.Rotation())
add_polygon(sketch15, [(-200, 88), (-200, -62), (200, -62), (200, 88)])  # lines 0-3
add_polygon(sketch15, [(180, -22), (-180, -22), (-180, 48), (180, 48)])  # lines 4-7
sketch15.addConstraint([
    Sketcher.Constraint("Vertical", 0),
    Sketcher.Constraint("Horizontal", 1),
    Sketcher.Constraint("Vertical", 2),
    Sketcher.Constraint("Horizontal", 3),
    Sketcher.Constraint("Horizontal", 4),
    Sketcher.Constraint("Vertical", 5),
    Sketcher.Constraint("Horizontal", 6),
    Sketcher.Constraint("Vertical", 7),
    Sketcher.Constraint("DistanceX", 1, 1, 1, 2, Q("400 mm")),
    Sketcher.Constraint("DistanceX", 4, 2, 4, 1, Q("360 mm")),
    Sketcher.Constraint("DistanceY", 0, 2, 0, 1, Q("150 mm")),
    Sketcher.Constraint("DistanceY", 5, 1, 5, 2, Q("70 mm")),
    Sketcher.Constraint("DistanceX", 0, 2, -1, 1, Q("200 mm")),
    Sketcher.Constraint("DistanceX", 4, 2, -1, 1, Q("180 mm")),
    Sketcher.Constraint("DistanceY", 0, 2, 4, 2, Q("40 mm")),
    Sketcher.Constraint("DistanceY", 0, 2, -1, 1, Q("62.101815 mm")),
])
pad15 = body15.newObject("PartDesign::Pad", "Pad014")
pad15.Profile = sketch15
pad15.Length = 10
body16 = doc.addObject("PartDesign::Body", "Body015")

# Sketch on XY plane
sketch16 = body16.newObject("Sketcher::SketchObject", "Sketch015")
sketch16.AttachmentSupport = (doc.getObject("XY_Plane015"), [""])
sketch16.MapMode = "FlatFace"
sketch16.AttachmentOffset = App.Placement(V(0, 0, 70), App.Rotation())
add_polygon(sketch16, [(-175, 65), (-175, -45), (175, -45), (175, 65)])  # lines 0-3
sketch16.addGeometry(Part.Circle(V(-171.1, -40, 0), V(0, 0, 1), 1.3), False)  # 4
sketch16.addGeometry(Part.Circle(V(-15.1, -40, 0), V(0, 0, 1), 1.3), False)  # 5
sketch16.addGeometry(Part.Circle(V(170.9, -40, 0), V(0, 0, 1), 1.3), False)  # 6
sketch16.addGeometry(Part.Circle(V(-171.1, 60, 0), V(0, 0, 1), 1.3), False)  # 7
sketch16.addGeometry(Part.Circle(V(-15.1, 60, 0), V(0, 0, 1), 1.3), False)  # 8
sketch16.addGeometry(Part.Circle(V(170.9, 60, 0), V(0, 0, 1), 1.3), False)  # 9
sketch16.addConstraint([
    Sketcher.Constraint("Vertical", 0),
    Sketcher.Constraint("Horizontal", 1),
    Sketcher.Constraint("Vertical", 2),
    Sketcher.Constraint("Horizontal", 3),
    Sketcher.Constraint("Equal", 4, 5),
    Sketcher.Constraint("Equal", 5, 6),
    Sketcher.Constraint("Equal", 6, 7),
    Sketcher.Constraint("Equal", 7, 8),
    Sketcher.Constraint("Equal", 8, 9),
    Sketcher.Constraint("Horizontal", 4, 3, 5, 3),
    Sketcher.Constraint("Horizontal", 5, 3, 6, 3),
    Sketcher.Constraint("Horizontal", 7, 3, 8, 3),
    Sketcher.Constraint("Horizontal", 8, 3, 9, 3),
    Sketcher.Constraint("Vertical", 4, 3, 7, 3),
    Sketcher.Constraint("Vertical", 5, 3, 8, 3),
    Sketcher.Constraint("Vertical", 6, 3, 9, 3),
    Sketcher.Constraint("Diameter", 4, Q("2.6 mm")),
    Sketcher.Constraint("DistanceX", 1, 1, 1, 2, Q("350 mm")),
    Sketcher.Constraint("DistanceY", 0, 2, 0, 1, Q("110 mm")),
    Sketcher.Constraint("DistanceY", 4, 3, -1, 1, Q("40 mm")),
    Sketcher.Constraint("DistanceY", -1, 1, 7, 3, Q("60 mm")),
    Sketcher.Constraint("DistanceX", 0, 2, -1, 1, Q("175 mm")),
    Sketcher.Constraint("DistanceY", 0, 2, -1, 1, Q("45 mm")),
    Sketcher.Constraint("DistanceX", 4, 3, 5, 3, Q("156 mm")),
    Sketcher.Constraint("DistanceX", 5, 3, 6, 3, Q("186 mm")),
    Sketcher.Constraint("DistanceX", 4, 3, -1, 1, Q("171.066391 mm")),
])
pad16 = body16.newObject("PartDesign::Pad", "Pad015")
pad16.Profile = sketch16
pad16.Length = 20

doc.recompute()
